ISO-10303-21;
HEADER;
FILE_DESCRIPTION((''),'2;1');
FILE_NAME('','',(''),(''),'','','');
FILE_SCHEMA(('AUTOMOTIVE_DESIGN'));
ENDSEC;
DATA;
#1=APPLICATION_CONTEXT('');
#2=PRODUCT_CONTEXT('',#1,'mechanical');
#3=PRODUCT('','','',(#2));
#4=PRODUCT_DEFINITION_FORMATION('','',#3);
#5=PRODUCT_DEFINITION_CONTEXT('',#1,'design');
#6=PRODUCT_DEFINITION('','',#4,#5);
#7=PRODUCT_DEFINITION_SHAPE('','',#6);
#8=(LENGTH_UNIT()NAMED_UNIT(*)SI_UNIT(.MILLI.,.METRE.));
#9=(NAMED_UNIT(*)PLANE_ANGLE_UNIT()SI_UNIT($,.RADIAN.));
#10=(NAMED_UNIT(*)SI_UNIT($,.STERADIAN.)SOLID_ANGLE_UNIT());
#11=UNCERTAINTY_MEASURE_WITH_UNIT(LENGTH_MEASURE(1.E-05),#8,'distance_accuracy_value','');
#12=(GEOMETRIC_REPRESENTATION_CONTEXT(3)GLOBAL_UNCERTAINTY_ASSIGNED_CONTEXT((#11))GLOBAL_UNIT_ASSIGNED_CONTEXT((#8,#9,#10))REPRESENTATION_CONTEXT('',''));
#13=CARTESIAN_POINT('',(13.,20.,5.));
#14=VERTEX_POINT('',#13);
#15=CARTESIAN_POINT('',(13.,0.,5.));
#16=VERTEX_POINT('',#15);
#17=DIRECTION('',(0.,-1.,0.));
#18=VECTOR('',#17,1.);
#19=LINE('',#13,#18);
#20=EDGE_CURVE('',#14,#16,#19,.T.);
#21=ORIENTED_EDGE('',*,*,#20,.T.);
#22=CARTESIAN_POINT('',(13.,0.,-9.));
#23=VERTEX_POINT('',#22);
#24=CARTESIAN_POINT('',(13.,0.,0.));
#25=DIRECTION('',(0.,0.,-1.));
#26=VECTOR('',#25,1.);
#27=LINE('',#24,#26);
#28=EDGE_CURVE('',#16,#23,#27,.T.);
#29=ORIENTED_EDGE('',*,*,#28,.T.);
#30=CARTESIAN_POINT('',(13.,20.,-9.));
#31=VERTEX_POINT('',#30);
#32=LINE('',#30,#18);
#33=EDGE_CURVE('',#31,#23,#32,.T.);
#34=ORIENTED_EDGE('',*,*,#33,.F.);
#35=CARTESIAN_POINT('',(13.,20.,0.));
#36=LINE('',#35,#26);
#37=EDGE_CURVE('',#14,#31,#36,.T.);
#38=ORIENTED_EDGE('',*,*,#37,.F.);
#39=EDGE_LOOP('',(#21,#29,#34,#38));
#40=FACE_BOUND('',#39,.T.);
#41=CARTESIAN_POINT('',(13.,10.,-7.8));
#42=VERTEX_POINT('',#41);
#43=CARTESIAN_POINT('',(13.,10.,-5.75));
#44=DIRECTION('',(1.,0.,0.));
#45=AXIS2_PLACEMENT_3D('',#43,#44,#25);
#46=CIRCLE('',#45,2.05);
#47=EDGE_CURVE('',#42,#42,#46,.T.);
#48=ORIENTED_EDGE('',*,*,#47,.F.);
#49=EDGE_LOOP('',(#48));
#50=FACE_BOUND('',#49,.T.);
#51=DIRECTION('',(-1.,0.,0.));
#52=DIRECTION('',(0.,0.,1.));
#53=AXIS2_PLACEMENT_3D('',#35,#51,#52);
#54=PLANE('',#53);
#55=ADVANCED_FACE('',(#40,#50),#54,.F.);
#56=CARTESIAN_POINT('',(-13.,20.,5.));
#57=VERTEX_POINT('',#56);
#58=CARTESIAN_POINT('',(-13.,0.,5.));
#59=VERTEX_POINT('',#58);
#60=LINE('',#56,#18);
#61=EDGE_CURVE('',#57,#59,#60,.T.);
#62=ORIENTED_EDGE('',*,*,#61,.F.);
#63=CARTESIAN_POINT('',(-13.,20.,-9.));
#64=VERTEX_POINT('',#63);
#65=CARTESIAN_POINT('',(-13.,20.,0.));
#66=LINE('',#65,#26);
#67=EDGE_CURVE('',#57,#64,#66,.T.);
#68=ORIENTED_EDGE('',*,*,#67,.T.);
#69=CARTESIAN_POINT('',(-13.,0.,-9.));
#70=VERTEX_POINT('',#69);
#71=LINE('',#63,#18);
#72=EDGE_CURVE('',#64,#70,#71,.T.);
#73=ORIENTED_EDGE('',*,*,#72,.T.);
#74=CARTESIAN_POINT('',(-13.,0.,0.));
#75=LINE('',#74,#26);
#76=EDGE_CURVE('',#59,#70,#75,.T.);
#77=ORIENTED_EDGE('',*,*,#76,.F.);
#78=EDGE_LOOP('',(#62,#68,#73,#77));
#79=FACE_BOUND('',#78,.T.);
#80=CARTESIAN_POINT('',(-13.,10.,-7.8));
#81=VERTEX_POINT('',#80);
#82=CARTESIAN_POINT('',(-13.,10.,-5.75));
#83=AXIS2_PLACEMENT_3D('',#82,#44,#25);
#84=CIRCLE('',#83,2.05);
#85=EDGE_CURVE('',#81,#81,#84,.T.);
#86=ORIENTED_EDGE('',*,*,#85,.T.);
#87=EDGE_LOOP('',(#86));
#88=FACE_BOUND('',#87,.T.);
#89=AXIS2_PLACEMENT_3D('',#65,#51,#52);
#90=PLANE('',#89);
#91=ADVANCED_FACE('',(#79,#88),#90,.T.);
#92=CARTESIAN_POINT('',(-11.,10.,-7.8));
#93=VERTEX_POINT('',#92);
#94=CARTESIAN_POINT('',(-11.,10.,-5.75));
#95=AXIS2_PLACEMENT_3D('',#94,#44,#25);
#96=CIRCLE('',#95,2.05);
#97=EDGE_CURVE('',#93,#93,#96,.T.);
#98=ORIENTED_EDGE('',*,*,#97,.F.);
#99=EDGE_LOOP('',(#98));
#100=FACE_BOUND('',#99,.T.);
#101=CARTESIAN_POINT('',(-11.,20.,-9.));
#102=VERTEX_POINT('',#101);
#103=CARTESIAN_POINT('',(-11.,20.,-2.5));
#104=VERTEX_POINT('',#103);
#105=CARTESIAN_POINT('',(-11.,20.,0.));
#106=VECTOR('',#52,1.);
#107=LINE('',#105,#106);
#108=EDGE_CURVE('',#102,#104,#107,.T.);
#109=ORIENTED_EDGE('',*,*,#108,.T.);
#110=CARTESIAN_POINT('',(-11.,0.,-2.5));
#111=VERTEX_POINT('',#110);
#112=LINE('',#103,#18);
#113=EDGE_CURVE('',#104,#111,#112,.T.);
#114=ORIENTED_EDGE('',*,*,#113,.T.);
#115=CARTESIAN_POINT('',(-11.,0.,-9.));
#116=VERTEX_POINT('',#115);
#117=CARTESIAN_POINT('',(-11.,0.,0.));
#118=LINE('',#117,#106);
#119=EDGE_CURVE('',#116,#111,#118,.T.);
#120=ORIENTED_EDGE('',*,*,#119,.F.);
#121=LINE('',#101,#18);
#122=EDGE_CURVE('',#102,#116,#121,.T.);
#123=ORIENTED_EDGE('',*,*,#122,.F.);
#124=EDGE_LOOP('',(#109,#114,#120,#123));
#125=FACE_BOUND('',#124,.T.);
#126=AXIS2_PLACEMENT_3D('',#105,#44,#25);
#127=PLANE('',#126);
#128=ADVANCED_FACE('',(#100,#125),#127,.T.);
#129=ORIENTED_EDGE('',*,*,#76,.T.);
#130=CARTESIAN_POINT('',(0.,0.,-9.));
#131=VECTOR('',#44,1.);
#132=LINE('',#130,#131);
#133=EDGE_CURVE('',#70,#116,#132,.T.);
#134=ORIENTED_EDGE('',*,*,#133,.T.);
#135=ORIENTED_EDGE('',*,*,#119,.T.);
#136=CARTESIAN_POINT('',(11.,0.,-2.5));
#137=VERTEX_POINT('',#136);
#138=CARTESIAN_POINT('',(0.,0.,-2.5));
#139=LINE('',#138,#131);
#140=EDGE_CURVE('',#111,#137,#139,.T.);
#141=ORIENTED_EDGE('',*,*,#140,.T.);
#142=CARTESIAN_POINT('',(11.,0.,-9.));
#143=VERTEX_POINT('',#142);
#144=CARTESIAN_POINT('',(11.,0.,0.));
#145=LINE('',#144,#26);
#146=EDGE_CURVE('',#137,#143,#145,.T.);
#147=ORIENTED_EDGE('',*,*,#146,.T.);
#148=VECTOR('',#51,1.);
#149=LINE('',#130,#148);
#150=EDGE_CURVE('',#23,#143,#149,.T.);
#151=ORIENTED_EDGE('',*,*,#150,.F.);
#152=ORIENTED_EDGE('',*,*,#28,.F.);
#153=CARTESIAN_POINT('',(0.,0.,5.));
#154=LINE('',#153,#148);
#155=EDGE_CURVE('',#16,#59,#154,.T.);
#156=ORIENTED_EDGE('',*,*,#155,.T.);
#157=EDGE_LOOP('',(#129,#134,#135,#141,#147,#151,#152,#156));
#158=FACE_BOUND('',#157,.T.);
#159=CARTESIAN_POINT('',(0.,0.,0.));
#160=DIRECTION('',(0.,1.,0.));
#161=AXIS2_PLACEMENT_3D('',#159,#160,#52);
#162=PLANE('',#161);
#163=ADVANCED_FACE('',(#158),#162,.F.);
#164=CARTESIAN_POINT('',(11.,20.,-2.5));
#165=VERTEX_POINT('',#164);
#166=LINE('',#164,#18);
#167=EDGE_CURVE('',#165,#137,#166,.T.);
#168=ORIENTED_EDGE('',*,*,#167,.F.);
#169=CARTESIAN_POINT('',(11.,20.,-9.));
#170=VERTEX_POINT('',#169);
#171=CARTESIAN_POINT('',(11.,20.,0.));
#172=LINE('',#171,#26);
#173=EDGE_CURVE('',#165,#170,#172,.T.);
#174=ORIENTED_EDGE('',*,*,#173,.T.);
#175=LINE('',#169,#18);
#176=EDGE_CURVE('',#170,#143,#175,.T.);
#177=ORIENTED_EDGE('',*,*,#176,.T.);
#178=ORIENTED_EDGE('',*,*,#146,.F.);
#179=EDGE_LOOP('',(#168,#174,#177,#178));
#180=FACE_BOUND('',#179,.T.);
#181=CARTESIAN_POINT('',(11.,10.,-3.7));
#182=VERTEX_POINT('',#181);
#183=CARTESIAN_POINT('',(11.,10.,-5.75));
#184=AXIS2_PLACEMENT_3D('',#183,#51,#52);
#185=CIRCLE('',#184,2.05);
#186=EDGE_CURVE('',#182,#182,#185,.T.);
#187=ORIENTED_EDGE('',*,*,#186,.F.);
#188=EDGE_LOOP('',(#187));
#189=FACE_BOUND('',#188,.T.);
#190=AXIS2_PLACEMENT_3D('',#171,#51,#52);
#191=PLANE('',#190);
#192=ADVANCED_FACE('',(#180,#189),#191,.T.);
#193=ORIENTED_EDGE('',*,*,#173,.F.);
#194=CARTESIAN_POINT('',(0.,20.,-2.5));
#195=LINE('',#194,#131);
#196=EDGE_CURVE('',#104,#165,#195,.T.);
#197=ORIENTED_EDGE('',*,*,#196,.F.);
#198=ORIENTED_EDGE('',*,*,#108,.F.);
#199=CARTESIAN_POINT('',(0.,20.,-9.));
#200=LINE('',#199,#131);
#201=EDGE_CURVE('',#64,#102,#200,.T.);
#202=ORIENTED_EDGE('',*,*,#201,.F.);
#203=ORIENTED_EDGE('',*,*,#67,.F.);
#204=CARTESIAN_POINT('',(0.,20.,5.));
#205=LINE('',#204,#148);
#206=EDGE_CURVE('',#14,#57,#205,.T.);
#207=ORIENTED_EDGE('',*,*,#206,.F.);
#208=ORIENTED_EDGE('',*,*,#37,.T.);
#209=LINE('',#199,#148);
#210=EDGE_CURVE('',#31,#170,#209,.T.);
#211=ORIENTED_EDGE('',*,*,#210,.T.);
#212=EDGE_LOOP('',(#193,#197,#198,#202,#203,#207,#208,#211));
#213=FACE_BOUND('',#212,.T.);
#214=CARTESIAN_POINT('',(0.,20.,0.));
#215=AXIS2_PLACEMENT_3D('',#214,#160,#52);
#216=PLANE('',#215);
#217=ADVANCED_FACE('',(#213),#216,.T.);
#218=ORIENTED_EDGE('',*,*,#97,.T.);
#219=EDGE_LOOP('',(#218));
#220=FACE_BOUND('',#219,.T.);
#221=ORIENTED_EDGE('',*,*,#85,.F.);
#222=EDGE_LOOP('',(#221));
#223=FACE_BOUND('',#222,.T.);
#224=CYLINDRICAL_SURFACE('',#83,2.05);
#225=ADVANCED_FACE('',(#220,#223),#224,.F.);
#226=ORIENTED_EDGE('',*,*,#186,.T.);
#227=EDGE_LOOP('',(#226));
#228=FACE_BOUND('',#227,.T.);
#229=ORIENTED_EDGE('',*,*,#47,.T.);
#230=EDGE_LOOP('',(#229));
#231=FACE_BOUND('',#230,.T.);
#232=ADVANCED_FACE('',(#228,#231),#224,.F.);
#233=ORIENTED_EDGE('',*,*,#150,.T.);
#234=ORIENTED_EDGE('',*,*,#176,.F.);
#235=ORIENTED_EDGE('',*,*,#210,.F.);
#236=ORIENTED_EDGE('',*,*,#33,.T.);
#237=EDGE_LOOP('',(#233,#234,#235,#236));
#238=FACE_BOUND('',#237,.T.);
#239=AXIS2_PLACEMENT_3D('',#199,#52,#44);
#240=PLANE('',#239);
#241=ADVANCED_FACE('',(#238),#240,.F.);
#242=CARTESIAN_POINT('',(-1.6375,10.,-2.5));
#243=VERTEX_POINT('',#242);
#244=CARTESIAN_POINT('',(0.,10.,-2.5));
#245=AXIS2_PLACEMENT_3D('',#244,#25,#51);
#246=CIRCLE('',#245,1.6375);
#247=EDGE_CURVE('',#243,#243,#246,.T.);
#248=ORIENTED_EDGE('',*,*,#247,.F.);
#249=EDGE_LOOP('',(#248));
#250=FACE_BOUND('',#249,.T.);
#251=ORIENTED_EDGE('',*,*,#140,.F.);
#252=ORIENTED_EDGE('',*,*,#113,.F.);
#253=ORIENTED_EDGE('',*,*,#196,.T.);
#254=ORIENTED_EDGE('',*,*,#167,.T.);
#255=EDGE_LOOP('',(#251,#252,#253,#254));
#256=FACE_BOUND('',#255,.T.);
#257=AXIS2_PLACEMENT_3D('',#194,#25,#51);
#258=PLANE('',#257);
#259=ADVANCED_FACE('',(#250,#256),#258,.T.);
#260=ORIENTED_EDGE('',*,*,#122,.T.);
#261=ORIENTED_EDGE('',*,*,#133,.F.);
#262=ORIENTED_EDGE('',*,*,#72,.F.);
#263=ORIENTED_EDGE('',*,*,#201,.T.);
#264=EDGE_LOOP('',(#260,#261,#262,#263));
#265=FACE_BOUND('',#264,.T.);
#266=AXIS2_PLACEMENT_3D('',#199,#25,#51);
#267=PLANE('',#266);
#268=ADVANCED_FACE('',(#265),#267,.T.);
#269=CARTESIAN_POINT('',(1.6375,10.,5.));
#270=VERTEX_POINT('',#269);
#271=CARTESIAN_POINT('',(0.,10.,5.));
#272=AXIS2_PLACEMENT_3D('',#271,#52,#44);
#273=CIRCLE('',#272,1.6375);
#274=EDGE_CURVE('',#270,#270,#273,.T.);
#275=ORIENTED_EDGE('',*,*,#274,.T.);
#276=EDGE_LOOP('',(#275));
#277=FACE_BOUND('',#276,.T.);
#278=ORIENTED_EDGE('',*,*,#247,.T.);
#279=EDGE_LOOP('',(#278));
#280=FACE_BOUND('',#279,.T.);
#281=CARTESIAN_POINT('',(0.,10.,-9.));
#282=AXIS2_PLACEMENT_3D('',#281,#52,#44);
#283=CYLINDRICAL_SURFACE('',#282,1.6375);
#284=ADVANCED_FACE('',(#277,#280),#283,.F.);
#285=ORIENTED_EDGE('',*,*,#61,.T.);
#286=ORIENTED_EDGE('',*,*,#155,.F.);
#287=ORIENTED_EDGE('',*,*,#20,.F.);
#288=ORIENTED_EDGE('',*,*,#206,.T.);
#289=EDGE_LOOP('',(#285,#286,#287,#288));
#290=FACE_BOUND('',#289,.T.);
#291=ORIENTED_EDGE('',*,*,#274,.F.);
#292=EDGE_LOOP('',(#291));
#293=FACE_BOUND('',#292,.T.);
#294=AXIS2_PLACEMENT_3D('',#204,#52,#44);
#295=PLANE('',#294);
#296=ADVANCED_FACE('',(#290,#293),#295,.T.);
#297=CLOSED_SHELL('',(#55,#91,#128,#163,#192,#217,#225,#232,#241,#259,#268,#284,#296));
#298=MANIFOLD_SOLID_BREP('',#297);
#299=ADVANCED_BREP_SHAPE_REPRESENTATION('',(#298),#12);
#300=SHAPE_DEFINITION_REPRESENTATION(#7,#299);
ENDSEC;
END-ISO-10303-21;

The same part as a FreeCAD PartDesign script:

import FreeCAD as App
import Part
import Sketcher
Q = App.Units.Quantity

doc = App.newDocument("Part")
body = doc.addObject("PartDesign::Body", "Body")

# Sketch on XZ plane
sketch1 = body.newObject("Sketcher::SketchObject", "Sketch")
sketch1.AttachmentSupport = (doc.getObject("XZ_Plane"), [""])
sketch1.MapMode = "FlatFace"
sketch1.addGeometry([
    Part.LineSegment(App.Vector(13, 5, 0), App.Vector(13, -9, 0)),  # 0
    Part.LineSegment(App.Vector(13, -9, 0), App.Vector(11, -9, 0)),  # 1
    Part.LineSegment(App.Vector(11, -9, 0), App.Vector(11, -2.5, 0)),  # 2
    Part.LineSegment(App.Vector(11, -2.5, 0), App.Vector(-11, -2.5, 0)),  # 3
    Part.LineSegment(App.Vector(-11, -2.5, 0), App.Vector(-11, -9, 0)),  # 4
    Part.LineSegment(App.Vector(-11, -9, 0), App.Vector(-13, -9, 0)),  # 5
    Part.LineSegment(App.Vector(-13, -9, 0), App.Vector(-13, 5, 0)),  # 6
    Part.LineSegment(App.Vector(-13, 5, 0), App.Vector(13, 5, 0)),  # 7
], False)
sketch1.addConstraint([
    Sketcher.Constraint("Coincident", 0, 2, 1, 1),
    Sketcher.Constraint("Coincident", 1, 2, 2, 1),
    Sketcher.Constraint("Coincident", 2, 2, 3, 1),
    Sketcher.Constraint("Coincident", 3, 2, 4, 1),
    Sketcher.Constraint("Coincident", 4, 2, 5, 1),
    Sketcher.Constraint("Coincident", 5, 2, 6, 1),
    Sketcher.Constraint("Coincident", 6, 2, 7, 1),
    Sketcher.Constraint("Coincident", 7, 2, 0, 1),
    Sketcher.Constraint("Vertical", 0),
    Sketcher.Constraint("Horizontal", 1),
    Sketcher.Constraint("Vertical", 2),
    Sketcher.Constraint("Horizontal", 3),
    Sketcher.Constraint("Vertical", 4),
    Sketcher.Constraint("Horizontal", 5),
    Sketcher.Constraint("Vertical", 6),
    Sketcher.Constraint("Horizontal", 7),
    Sketcher.Constraint("Symmetric", 1, 2, 4, 2, -2),
    Sketcher.Constraint("Equal", 1, 5),
    Sketcher.Constraint("DistanceX", 1, 2, 1, 1, Q("2 mm")),
    Sketcher.Constraint("DistanceX", 3, 2, 3, 1, Q("22 mm")),
    Sketcher.Constraint("DistanceY", 0, 2, 0, 1, Q("14 mm")),
    Sketcher.Constraint("DistanceY", 2, 1, 2, 2, Q("6.5 mm")),
    Sketcher.Constraint("DistanceY", 0, 2, -1, 1, Q("9 mm")),
])
pad1 = body.newObject("PartDesign::Pad", "Pad")
pad1.Profile = sketch1
pad1.Length = 20
pad1.Reversed = True

# Sketch on XY plane
sketch2 = body.newObject("Sketcher::SketchObject", "Sketch001")
sketch2.AttachmentSupport = (doc.getObject("XY_Plane"), [""])
sketch2.MapMode = "FlatFace"
sketch2.addGeometry(Part.Circle(App.Vector(0, 10, 0), App.Vector(0, 0, 1), 1.6), False)
sketch2.addConstraint([
    Sketcher.Constraint("PointOnObject", 0, 3, -2),
    Sketcher.Constraint("Diameter", 0, Q("3.275 mm")),
    Sketcher.Constraint("DistanceY", -1, 1, 0, 3, Q("10 mm")),
])
pocket1 = body.newObject("PartDesign::Pocket", "Pocket")
pocket1.Profile = sketch2
pocket1.Type = "ThroughAll"
pocket1.Midplane = True

# Sketch on YZ plane
sketch3 = body.newObject("Sketcher::SketchObject", "Sketch002")
sketch3.AttachmentSupport = (doc.getObject("YZ_Plane"), [""])
sketch3.MapMode = "FlatFace"
sketch3.addGeometry(Part.Circle(App.Vector(10, -5.8, 0), App.Vector(0, 0, 1), 2), False)
sketch3.addConstraint([
    Sketcher.Constraint("Diameter", 0, Q("4.1 mm")),
    Sketcher.Constraint("DistanceX", -1, 1, 0, 3, Q("10 mm")),
    Sketcher.Constraint("DistanceY", 0, 3, -1, 1, Q("5.75 mm")),
])
pocket2 = body.newObject("PartDesign::Pocket", "Pocket001")
pocket2.Profile = sketch3
pocket2.Type = "ThroughAll"
pocket2.Midplane = True

doc.recompute()
